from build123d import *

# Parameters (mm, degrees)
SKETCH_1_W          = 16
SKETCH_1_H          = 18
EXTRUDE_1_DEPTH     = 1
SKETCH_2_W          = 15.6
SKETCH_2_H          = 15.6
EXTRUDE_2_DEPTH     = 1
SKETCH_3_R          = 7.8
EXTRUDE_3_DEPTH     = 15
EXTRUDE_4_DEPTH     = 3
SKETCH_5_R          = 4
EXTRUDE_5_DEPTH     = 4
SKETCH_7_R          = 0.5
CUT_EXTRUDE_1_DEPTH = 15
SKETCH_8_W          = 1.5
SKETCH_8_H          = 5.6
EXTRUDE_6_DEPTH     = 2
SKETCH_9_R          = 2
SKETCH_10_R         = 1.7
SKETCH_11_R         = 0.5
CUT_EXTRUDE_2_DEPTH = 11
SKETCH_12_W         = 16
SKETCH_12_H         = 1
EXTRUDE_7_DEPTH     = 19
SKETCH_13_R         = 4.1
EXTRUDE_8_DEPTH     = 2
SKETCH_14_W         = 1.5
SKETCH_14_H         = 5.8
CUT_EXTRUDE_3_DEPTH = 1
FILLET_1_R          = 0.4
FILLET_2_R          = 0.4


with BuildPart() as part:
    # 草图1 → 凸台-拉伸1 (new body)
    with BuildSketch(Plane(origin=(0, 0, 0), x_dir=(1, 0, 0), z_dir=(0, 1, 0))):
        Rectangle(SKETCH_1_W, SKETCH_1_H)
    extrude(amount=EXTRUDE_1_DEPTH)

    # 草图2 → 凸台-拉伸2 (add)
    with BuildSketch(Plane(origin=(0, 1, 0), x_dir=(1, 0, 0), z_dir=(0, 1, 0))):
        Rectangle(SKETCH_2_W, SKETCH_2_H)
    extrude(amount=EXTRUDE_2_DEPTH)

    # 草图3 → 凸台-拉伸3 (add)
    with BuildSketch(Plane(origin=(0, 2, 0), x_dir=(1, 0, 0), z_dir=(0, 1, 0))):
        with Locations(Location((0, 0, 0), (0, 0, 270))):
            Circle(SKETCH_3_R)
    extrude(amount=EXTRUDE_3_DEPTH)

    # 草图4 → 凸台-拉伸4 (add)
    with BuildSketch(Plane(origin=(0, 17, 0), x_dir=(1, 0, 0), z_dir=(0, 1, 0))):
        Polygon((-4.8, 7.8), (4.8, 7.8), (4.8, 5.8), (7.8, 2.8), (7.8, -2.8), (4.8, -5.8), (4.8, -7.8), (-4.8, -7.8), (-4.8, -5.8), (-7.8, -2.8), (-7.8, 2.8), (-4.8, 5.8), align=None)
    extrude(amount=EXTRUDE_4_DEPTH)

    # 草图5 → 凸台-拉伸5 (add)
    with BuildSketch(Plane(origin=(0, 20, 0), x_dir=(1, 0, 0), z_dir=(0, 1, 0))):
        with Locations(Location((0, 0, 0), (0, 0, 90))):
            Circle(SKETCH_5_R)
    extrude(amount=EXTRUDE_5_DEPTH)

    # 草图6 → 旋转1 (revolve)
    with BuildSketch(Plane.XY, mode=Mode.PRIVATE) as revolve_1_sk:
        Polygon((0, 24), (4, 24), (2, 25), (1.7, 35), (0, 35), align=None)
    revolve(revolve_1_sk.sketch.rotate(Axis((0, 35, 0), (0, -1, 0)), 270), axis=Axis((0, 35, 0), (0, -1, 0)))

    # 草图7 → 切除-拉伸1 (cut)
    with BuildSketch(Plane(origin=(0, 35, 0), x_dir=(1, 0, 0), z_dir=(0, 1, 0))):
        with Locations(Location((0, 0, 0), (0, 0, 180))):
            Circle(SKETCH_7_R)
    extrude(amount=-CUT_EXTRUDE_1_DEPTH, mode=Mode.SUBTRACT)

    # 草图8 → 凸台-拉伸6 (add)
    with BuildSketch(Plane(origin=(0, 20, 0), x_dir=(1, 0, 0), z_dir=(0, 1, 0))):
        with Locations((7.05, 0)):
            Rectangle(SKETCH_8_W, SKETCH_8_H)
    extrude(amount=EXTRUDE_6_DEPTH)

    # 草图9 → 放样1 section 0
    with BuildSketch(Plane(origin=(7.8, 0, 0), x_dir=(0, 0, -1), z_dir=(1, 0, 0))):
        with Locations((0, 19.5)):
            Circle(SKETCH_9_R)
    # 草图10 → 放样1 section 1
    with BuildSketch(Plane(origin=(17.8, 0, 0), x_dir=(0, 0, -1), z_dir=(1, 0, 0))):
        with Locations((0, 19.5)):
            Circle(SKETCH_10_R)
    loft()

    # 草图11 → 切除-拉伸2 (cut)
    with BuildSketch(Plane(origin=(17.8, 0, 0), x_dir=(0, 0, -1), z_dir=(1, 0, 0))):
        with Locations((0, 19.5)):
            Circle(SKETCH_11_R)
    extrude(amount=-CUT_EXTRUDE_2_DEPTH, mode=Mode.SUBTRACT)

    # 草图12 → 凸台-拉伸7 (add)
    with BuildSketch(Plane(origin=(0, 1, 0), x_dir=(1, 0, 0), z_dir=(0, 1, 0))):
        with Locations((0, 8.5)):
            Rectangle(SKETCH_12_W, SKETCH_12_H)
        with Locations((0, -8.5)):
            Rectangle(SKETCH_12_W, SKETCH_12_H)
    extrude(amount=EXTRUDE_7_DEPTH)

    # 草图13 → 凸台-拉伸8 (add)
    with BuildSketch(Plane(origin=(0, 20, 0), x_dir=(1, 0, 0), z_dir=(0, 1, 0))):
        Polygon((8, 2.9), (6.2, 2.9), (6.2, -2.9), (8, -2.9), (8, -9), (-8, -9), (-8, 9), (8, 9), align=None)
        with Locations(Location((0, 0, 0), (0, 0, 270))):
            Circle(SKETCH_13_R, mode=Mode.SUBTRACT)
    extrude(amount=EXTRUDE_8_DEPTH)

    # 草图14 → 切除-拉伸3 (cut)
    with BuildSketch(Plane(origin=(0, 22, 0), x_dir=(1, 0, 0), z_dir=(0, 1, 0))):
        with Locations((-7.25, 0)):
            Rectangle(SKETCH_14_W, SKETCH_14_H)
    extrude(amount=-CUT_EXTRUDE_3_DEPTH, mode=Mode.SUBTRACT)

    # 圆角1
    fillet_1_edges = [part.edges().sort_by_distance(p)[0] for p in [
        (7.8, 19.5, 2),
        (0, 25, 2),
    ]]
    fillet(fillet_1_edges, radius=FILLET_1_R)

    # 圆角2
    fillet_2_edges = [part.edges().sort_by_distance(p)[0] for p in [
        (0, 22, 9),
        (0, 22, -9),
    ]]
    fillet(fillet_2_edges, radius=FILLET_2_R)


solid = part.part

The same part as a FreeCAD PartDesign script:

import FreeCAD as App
import Part
import Sketcher


def edges_at(feature, points):
    """Names of the edges that pass closest to the given points."""
    edges = feature.Shape.Edges
    near = lambda p: min(range(len(edges)), key=lambda i: edges[i].distToShape(Part.Vertex(*p))[0])
    return sorted({f"Edge{near(p) + 1}" for p in points})


def add_polygon(sketch, points):
    """Adds a closed chain of lines whose ends are joined by coincident constraints."""
    first, n = sketch.GeometryCount, len(points)
    for a, b in zip(points, points[1:] + points[:1]):
        sketch.addGeometry(Part.LineSegment(App.Vector(*a, 0), App.Vector(*b, 0)), False)
    for i in range(n):
        sketch.addConstraint(Sketcher.Constraint("Coincident", first + i, 2, first + (i + 1) % n, 1))

doc = App.newDocument("Part")
body = doc.addObject("PartDesign::Body", "Body")

# Sketch on XZ plane
sketch1 = doc.addObject("Sketcher::SketchObject", "Sketch")
body.addObject(sketch1)
sketch1.AttachmentSupport = (doc.XZ_Plane, [""])
sketch1.MapMode = "FlatFace"
add_polygon(sketch1, [(-8, -9), (-8, 9), (8, 9), (8, -9)])  # lines 0-3
sketch1.addConstraint(Sketcher.Constraint("Vertical", 0))
sketch1.addConstraint(Sketcher.Constraint("Horizontal", 1))
sketch1.addConstraint(Sketcher.Constraint("Vertical", 2))
sketch1.addConstraint(Sketcher.Constraint("Horizontal", 3))
sketch1.addConstraint(Sketcher.Constraint("Symmetric", 0, 2, 2, 2, -1, 1))
sketch1.addConstraint(Sketcher.Constraint("DistanceX", 1, 1, 1, 2, 16.0))
sketch1.addConstraint(Sketcher.Constraint("DistanceY", 0, 1, 0, 2, 18.0))
pad1 = doc.addObject("PartDesign::Pad", "Pad")
body.addObject(pad1)
pad1.Profile = sketch1
pad1.Length = 1
pad1.Reversed = True

# Sketch on XZ plane
sketch2 = doc.addObject("Sketcher::SketchObject", "Sketch001")
body.addObject(sketch2)
sketch2.AttachmentSupport = (doc.XZ_Plane, [""])
sketch2.MapMode = "FlatFace"
sketch2.AttachmentOffset = App.Placement(App.Vector(0, 0, -1), App.Rotation())
add_polygon(sketch2, [(-8, -8), (-8, 8), (8, 8), (8, -8)])  # lines 0-3
sketch2.addConstraint(Sketcher.Constraint("Vertical", 0))
sketch2.addConstraint(Sketcher.Constraint("Horizontal", 1))
sketch2.addConstraint(Sketcher.Constraint("Vertical", 2))
sketch2.addConstraint(Sketcher.Constraint("Horizontal", 3))
sketch2.addConstraint(Sketcher.Constraint("Symmetric", 0, 2, 2, 2, -1, 1))
sketch2.addConstraint(Sketcher.Constraint("Equal", 3, 0))
sketch2.addConstraint(Sketcher.Constraint("DistanceX", 1, 1, 1, 2, 15.6))
pad2 = doc.addObject("PartDesign::Pad", "Pad001")
body.addObject(pad2)
pad2.Profile = sketch2
pad2.Length = 1
pad2.Reversed = True

# Sketch on XZ plane
sketch3 = doc.addObject("Sketcher::SketchObject", "Sketch002")
body.addObject(sketch3)
sketch3.AttachmentSupport = (doc.XZ_Plane, [""])
sketch3.MapMode = "FlatFace"
sketch3.AttachmentOffset = App.Placement(App.Vector(0, 0, -2), App.Rotation())
sketch3.addGeometry(Part.Circle(App.Vector(0, 0, 0), App.Vector(0, 0, 1), 8), False)
sketch3.addConstraint(Sketcher.Constraint("Coincident", 0, 3, -1, 1))
sketch3.addConstraint(Sketcher.Constraint("Diameter", 0, 15.6))
pad3 = doc.addObject("PartDesign::Pad", "Pad002")
body.addObject(pad3)
pad3.Profile = sketch3
pad3.Length = 15
pad3.Reversed = True

# Sketch on XZ plane
sketch4 = doc.addObject("Sketcher::SketchObject", "Sketch003")
body.addObject(sketch4)
sketch4.AttachmentSupport = (doc.XZ_Plane, [""])
sketch4.MapMode = "FlatFace"
sketch4.AttachmentOffset = App.Placement(App.Vector(0, 0, -17), App.Rotation())
add_polygon(sketch4, [(4.8, -7.8), (-4.8, -7.8), (-4.8, -5.8), (-7.8, -2.8), (-7.8, 2.8), (-4.8, 5.8), (-4.8, 7.8), (4.8, 7.8), (4.8, 5.8), (7.8, 2.8), (7.8, -2.8), (4.8, -5.8)])  # lines 0-11
sketch4.addConstraint(Sketcher.Constraint("Horizontal", 0))
sketch4.addConstraint(Sketcher.Constraint("Vertical", 1))
sketch4.addConstraint(Sketcher.Constraint("Vertical", 3))
sketch4.addConstraint(Sketcher.Constraint("Vertical", 5))
sketch4.addConstraint(Sketcher.Constraint("Horizontal", 6))
sketch4.addConstraint(Sketcher.Constraint("Vertical", 7))
sketch4.addConstraint(Sketcher.Constraint("Vertical", 9))
sketch4.addConstraint(Sketcher.Constraint("Vertical", 11))
sketch4.addConstraint(Sketcher.Constraint("Symmetric", 0, 2, 6, 2, -1, 1))
sketch4.addConstraint(Sketcher.Constraint("Symmetric", 2, 2, 8, 2, -1, 1))
sketch4.addConstraint(Sketcher.Constraint("Symmetric", 4, 2, 10, 2, -1, 1))
sketch4.addConstraint(Sketcher.Constraint("Symmetric", 4, 2, 7, 2, -2))
sketch4.addConstraint(Sketcher.Constraint("Perpendicular", 2, 4))
sketch4.addConstraint(Sketcher.Constraint("Perpendicular", 4, 8))
sketch4.addConstraint(Sketcher.Constraint("Perpendicular", 8, 10))
sketch4.addConstraint(Sketcher.Constraint("Horizontal", 3, 2, 8, 2))
sketch4.addConstraint(Sketcher.Constraint("DistanceY", 1, 1, 1, 2, 2.0))
sketch4.addConstraint(Sketcher.Constraint("DistanceX", 0, 2, 0, 1, 9.6))
sketch4.addConstraint(Sketcher.Constraint("DistanceY", 3, 1, 3, 2, 5.6))
sketch4.addConstraint(Sketcher.Constraint("DistanceX", 2, 2, 1, 2, 3.0))
pad4 = doc.addObject("PartDesign::Pad", "Pad003")
body.addObject(pad4)
pad4.Profile = sketch4
pad4.Length = 3
pad4.Reversed = True

# Sketch on XZ plane
sketch5 = doc.addObject("Sketcher::SketchObject", "Sketch004")
body.addObject(sketch5)
sketch5.AttachmentSupport = (doc.XZ_Plane, [""])
sketch5.MapMode = "FlatFace"
sketch5.AttachmentOffset = App.Placement(App.Vector(0, 0, -20), App.Rotation())
sketch5.addGeometry(Part.Circle(App.Vector(0, 0, 0), App.Vector(0, 0, 1), 4), False)
sketch5.addConstraint(Sketcher.Constraint("Coincident", 0, 3, -1, 1))
sketch5.addConstraint(Sketcher.Constraint("Diameter", 0, 8.0))
pad5 = doc.addObject("PartDesign::Pad", "Pad004")
body.addObject(pad5)
pad5.Profile = sketch5
pad5.Length = 4
pad5.Reversed = True

# Sketch on XY plane
sketch6 = doc.addObject("Sketcher::SketchObject", "Sketch005")
body.addObject(sketch6)
sketch6.AttachmentSupport = (doc.XY_Plane, [""])
sketch6.MapMode = "FlatFace"
add_polygon(sketch6, [(0, 24), (4, 24), (2, 25), (1.7, 35), (0, 35)])  # lines 0-4
sketch6.addConstraint(Sketcher.Constraint("Horizontal", 0))
sketch6.addConstraint(Sketcher.Constraint("Horizontal", 3))
sketch6.addConstraint(Sketcher.Constraint("Vertical", 4))
sketch6.addConstraint(Sketcher.Constraint("PointOnObject", 3, 2, -2))
sketch6.addConstraint(Sketcher.Constraint("DistanceX", 0, 1, 0, 2, 4.0))
sketch6.addConstraint(Sketcher.Constraint("DistanceY", 4, 2, 4, 1, 11.0))
sketch6.addConstraint(Sketcher.Constraint("DistanceX", 3, 2, 3, 1, 1.7))
sketch6.addConstraint(Sketcher.Constraint("DistanceY", -1, 1, 0, 2, 24.0))
sketch6.addConstraint(Sketcher.Constraint("DistanceX", -1, 1, 1, 2, 2.0))
sketch6.addConstraint(Sketcher.Constraint("DistanceY", -1, 1, 1, 2, 25.0))
revolution = doc.addObject("PartDesign::Revolution", "Revolution")
body.addObject(revolution)
revolution.Profile = sketch6
revolution.ReferenceAxis = (sketch6, ["V_Axis"])
revolution.Angle = 360

# Sketch on XZ plane
sketch7 = doc.addObject("Sketcher::SketchObject", "Sketch006")
body.addObject(sketch7)
sketch7.AttachmentSupport = (doc.XZ_Plane, [""])
sketch7.MapMode = "FlatFace"
sketch7.AttachmentOffset = App.Placement(App.Vector(0, 0, -35), App.Rotation())
sketch7.addGeometry(Part.Circle(App.Vector(0, 0, 0), App.Vector(0, 0, 1), 0.5), False)
sketch7.addConstraint(Sketcher.Constraint("Coincident", 0, 3, -1, 1))
sketch7.addConstraint(Sketcher.Constraint("Diameter", 0, 1.0))
pocket1 = doc.addObject("PartDesign::Pocket", "Pocket")
body.addObject(pocket1)
pocket1.Profile = sketch7
pocket1.Length = 15
pocket1.Reversed = True

# Sketch on XZ plane
sketch8 = doc.addObject("Sketcher::SketchObject", "Sketch007")
body.addObject(sketch8)
sketch8.AttachmentSupport = (doc.XZ_Plane, [""])
sketch8.MapMode = "FlatFace"
sketch8.AttachmentOffset = App.Placement(App.Vector(0, 0, -20), App.Rotation())
add_polygon(sketch8, [(6.3, -2.8), (6.3, 2.8), (7.8, 2.8), (7.8, -2.8)])  # lines 0-3
sketch8.addConstraint(Sketcher.Constraint("Vertical", 0))
sketch8.addConstraint(Sketcher.Constraint("Horizontal", 1))
sketch8.addConstraint(Sketcher.Constraint("Vertical", 2))
sketch8.addConstraint(Sketcher.Constraint("Horizontal", 3))
sketch8.addConstraint(Sketcher.Constraint("DistanceX", 1, 1, 1, 2, 1.5))
sketch8.addConstraint(Sketcher.Constraint("DistanceY", 0, 1, 0, 2, 5.6))
sketch8.addConstraint(Sketcher.Constraint("DistanceX", -1, 1, 0, 2, 6.3))
sketch8.addConstraint(Sketcher.Constraint("DistanceY", -1, 1, 0, 2, 2.8))
pad6 = doc.addObject("PartDesign::Pad", "Pad005")
body.addObject(pad6)
pad6.Profile = sketch8
pad6.Length = 2
pad6.Reversed = True

# Sketch on YZ plane
sketch9 = doc.addObject("Sketcher::SketchObject", "Sketch008")
body.addObject(sketch9)
sketch9.AttachmentSupport = (doc.YZ_Plane, [""])
sketch9.MapMode = "FlatFace"
sketch9.AttachmentOffset = App.Placement(App.Vector(0, 0, 7.8), App.Rotation())
sketch9.addGeometry(Part.Circle(App.Vector(19.5, 0, 0), App.Vector(0, 0, 1), 2), False)
sketch9.addConstraint(Sketcher.Constraint("PointOnObject", 0, 3, -1))
sketch9.addConstraint(Sketcher.Constraint("Diameter", 0, 4.0))
sketch9.addConstraint(Sketcher.Constraint("DistanceX", -1, 1, 0, 3, 19.5))

# Sketch on YZ plane
sketch10 = doc.addObject("Sketcher::SketchObject", "Sketch009")
body.addObject(sketch10)
sketch10.AttachmentSupport = (doc.YZ_Plane, [""])
sketch10.MapMode = "FlatFace"
sketch10.AttachmentOffset = App.Placement(App.Vector(0, 0, 17.8), App.Rotation())
sketch10.addGeometry(Part.Circle(App.Vector(19.5, 0, 0), App.Vector(0, 0, 1), 1.7), False)
sketch10.addConstraint(Sketcher.Constraint("PointOnObject", 0, 3, -1))
sketch10.addConstraint(Sketcher.Constraint("Diameter", 0, 3.4))
sketch10.addConstraint(Sketcher.Constraint("DistanceX", -1, 1, 0, 3, 19.5))

additiveloft = doc.addObject("PartDesign::AdditiveLoft", "AdditiveLoft")
body.addObject(additiveloft)
additiveloft.Profile = sketch9
additiveloft.Sections = [sketch10]

# Sketch on YZ plane
sketch11 = doc.addObject("Sketcher::SketchObject", "Sketch010")
body.addObject(sketch11)
sketch11.AttachmentSupport = (doc.YZ_Plane, [""])
sketch11.MapMode = "FlatFace"
sketch11.AttachmentOffset = App.Placement(App.Vector(0, 0, 17.8), App.Rotation())
sketch11.addGeometry(Part.Circle(App.Vector(19.5, 0, 0), App.Vector(0, 0, 1), 0.5), False)
sketch11.addConstraint(Sketcher.Constraint("PointOnObject", 0, 3, -1))
sketch11.addConstraint(Sketcher.Constraint("Diameter", 0, 1.0))
sketch11.addConstraint(Sketcher.Constraint("DistanceX", -1, 1, 0, 3, 19.5))
pocket2 = doc.addObject("PartDesign::Pocket", "Pocket001")
body.addObject(pocket2)
pocket2.Profile = sketch11
pocket2.Length = 11

# Sketch on XZ plane
sketch12 = doc.addObject("Sketcher::SketchObject", "Sketch011")
body.addObject(sketch12)
sketch12.AttachmentSupport = (doc.XZ_Plane, [""])
sketch12.MapMode = "FlatFace"
sketch12.AttachmentOffset = App.Placement(App.Vector(0, 0, -1), App.Rotation())
add_polygon(sketch12, [(-8, -9), (-8, -8), (8, -8), (8, -9)])  # lines 0-3
add_polygon(sketch12, [(-8, 8), (-8, 9), (8, 9), (8, 8)])  # lines 4-7
sketch12.addConstraint(Sketcher.Constraint("Vertical", 0))
sketch12.addConstraint(Sketcher.Constraint("Horizontal", 1))
sketch12.addConstraint(Sketcher.Constraint("Vertical", 2))
sketch12.addConstraint(Sketcher.Constraint("Horizontal", 3))
sketch12.addConstraint(Sketcher.Constraint("Vertical", 4))
sketch12.addConstraint(Sketcher.Constraint("Horizontal", 5))
sketch12.addConstraint(Sketcher.Constraint("Vertical", 6))
sketch12.addConstraint(Sketcher.Constraint("Horizontal", 7))
sketch12.addConstraint(Sketcher.Constraint("Symmetric", 2, 2, 4, 2, -1, 1))
sketch12.addConstraint(Sketcher.Constraint("Symmetric", 0, 2, 6, 2, -1, 1))
sketch12.addConstraint(Sketcher.Constraint("Vertical", 3, 2, 4, 2))
sketch12.addConstraint(Sketcher.Constraint("DistanceX", 1, 1, 1, 2, 16.0))
sketch12.addConstraint(Sketcher.Constraint("DistanceY", 0, 1, 0, 2, 1.0))
sketch12.addConstraint(Sketcher.Constraint("DistanceY", 0, 2, -1, 1, 8.0))
pad7 = doc.addObject("PartDesign::Pad", "Pad006")
body.addObject(pad7)
pad7.Profile = sketch12
pad7.Length = 19
pad7.Reversed = True

# Sketch on XZ plane
sketch13 = doc.addObject("Sketcher::SketchObject", "Sketch012")
body.addObject(sketch13)
sketch13.AttachmentSupport = (doc.XZ_Plane, [""])
sketch13.MapMode = "FlatFace"
sketch13.AttachmentOffset = App.Placement(App.Vector(0, 0, -20), App.Rotation())
add_polygon(sketch13, [(6.2, -2.9), (8, -2.9), (8, -9), (-8, -9), (-8, 9), (8, 9), (8, 2.9), (6.2, 2.9)])  # lines 0-7
sketch13.addGeometry(Part.Circle(App.Vector(0, 0, 0), App.Vector(0, 0, 1), 4.1), False)  # 8
sketch13.addConstraint(Sketcher.Constraint("Horizontal", 0))
sketch13.addConstraint(Sketcher.Constraint("Vertical", 1))
sketch13.addConstraint(Sketcher.Constraint("Horizontal", 2))
sketch13.addConstraint(Sketcher.Constraint("Vertical", 3))
sketch13.addConstraint(Sketcher.Constraint("Horizontal", 4))
sketch13.addConstraint(Sketcher.Constraint("Vertical", 5))
sketch13.addConstraint(Sketcher.Constraint("Horizontal", 6))
sketch13.addConstraint(Sketcher.Constraint("Vertical", 7))
sketch13.addConstraint(Sketcher.Constraint("Coincident", 8, 3, -1, 1))
sketch13.addConstraint(Sketcher.Constraint("Symmetric", 1, 2, 3, 2, -1, 1))
sketch13.addConstraint(Sketcher.Constraint("Symmetric", 0, 2, 5, 2, -1))
sketch13.addConstraint(Sketcher.Constraint("Diameter", 8, 8.2))
sketch13.addConstraint(Sketcher.Constraint("DistanceX", 2, 2, 2, 1, 16.0))
sketch13.addConstraint(Sketcher.Constraint("DistanceY", 3, 1, 3, 2, 18.0))
sketch13.addConstraint(Sketcher.Constraint("DistanceX", 0, 1, 0, 2, 1.8))
sketch13.addConstraint(Sketcher.Constraint("DistanceY", 1, 2, 1, 1, 6.1))
pad8 = doc.addObject("PartDesign::Pad", "Pad007")
body.addObject(pad8)
pad8.Profile = sketch13
pad8.Length = 2
pad8.Reversed = True

# Sketch on XZ plane
sketch14 = doc.addObject("Sketcher::SketchObject", "Sketch013")
body.addObject(sketch14)
sketch14.AttachmentSupport = (doc.XZ_Plane, [""])
sketch14.MapMode = "FlatFace"
sketch14.AttachmentOffset = App.Placement(App.Vector(0, 0, -22), App.Rotation())
add_polygon(sketch14, [(-8, -2.9), (-8, 2.9), (-6.5, 2.9), (-6.5, -2.9)])  # lines 0-3
sketch14.addConstraint(Sketcher.Constraint("Vertical", 0))
sketch14.addConstraint(Sketcher.Constraint("Horizontal", 1))
sketch14.addConstraint(Sketcher.Constraint("Vertical", 2))
sketch14.addConstraint(Sketcher.Constraint("Horizontal", 3))
sketch14.addConstraint(Sketcher.Constraint("DistanceX", 1, 1, 1, 2, 1.5))
sketch14.addConstraint(Sketcher.Constraint("DistanceY", 0, 1, 0, 2, 5.8))
sketch14.addConstraint(Sketcher.Constraint("DistanceX", 0, 2, -1, 1, 8.0))
sketch14.addConstraint(Sketcher.Constraint("DistanceY", -1, 1, 0, 2, 2.9))
pocket3 = doc.addObject("PartDesign::Pocket", "Pocket002")
body.addObject(pocket3)
pocket3.Profile = sketch14
pocket3.Length = 1
pocket3.Reversed = True
doc.recompute()

fillet = doc.addObject("PartDesign::Fillet", "Fillet")
body.addObject(fillet)
fillet.Base = (pocket3, edges_at(pocket3, [(7.8, 19.5, 2), (0, 25, 2)]))
fillet.Radius = 0.4
doc.recompute()

fillet2 = doc.addObject("PartDesign::Fillet", "Fillet001")
body.addObject(fillet2)
fillet2.Base = (fillet, edges_at(fillet, [(0, 22, 9), (0, 22, -9)]))
fillet2.Radius = 0.4

doc.recompute()
